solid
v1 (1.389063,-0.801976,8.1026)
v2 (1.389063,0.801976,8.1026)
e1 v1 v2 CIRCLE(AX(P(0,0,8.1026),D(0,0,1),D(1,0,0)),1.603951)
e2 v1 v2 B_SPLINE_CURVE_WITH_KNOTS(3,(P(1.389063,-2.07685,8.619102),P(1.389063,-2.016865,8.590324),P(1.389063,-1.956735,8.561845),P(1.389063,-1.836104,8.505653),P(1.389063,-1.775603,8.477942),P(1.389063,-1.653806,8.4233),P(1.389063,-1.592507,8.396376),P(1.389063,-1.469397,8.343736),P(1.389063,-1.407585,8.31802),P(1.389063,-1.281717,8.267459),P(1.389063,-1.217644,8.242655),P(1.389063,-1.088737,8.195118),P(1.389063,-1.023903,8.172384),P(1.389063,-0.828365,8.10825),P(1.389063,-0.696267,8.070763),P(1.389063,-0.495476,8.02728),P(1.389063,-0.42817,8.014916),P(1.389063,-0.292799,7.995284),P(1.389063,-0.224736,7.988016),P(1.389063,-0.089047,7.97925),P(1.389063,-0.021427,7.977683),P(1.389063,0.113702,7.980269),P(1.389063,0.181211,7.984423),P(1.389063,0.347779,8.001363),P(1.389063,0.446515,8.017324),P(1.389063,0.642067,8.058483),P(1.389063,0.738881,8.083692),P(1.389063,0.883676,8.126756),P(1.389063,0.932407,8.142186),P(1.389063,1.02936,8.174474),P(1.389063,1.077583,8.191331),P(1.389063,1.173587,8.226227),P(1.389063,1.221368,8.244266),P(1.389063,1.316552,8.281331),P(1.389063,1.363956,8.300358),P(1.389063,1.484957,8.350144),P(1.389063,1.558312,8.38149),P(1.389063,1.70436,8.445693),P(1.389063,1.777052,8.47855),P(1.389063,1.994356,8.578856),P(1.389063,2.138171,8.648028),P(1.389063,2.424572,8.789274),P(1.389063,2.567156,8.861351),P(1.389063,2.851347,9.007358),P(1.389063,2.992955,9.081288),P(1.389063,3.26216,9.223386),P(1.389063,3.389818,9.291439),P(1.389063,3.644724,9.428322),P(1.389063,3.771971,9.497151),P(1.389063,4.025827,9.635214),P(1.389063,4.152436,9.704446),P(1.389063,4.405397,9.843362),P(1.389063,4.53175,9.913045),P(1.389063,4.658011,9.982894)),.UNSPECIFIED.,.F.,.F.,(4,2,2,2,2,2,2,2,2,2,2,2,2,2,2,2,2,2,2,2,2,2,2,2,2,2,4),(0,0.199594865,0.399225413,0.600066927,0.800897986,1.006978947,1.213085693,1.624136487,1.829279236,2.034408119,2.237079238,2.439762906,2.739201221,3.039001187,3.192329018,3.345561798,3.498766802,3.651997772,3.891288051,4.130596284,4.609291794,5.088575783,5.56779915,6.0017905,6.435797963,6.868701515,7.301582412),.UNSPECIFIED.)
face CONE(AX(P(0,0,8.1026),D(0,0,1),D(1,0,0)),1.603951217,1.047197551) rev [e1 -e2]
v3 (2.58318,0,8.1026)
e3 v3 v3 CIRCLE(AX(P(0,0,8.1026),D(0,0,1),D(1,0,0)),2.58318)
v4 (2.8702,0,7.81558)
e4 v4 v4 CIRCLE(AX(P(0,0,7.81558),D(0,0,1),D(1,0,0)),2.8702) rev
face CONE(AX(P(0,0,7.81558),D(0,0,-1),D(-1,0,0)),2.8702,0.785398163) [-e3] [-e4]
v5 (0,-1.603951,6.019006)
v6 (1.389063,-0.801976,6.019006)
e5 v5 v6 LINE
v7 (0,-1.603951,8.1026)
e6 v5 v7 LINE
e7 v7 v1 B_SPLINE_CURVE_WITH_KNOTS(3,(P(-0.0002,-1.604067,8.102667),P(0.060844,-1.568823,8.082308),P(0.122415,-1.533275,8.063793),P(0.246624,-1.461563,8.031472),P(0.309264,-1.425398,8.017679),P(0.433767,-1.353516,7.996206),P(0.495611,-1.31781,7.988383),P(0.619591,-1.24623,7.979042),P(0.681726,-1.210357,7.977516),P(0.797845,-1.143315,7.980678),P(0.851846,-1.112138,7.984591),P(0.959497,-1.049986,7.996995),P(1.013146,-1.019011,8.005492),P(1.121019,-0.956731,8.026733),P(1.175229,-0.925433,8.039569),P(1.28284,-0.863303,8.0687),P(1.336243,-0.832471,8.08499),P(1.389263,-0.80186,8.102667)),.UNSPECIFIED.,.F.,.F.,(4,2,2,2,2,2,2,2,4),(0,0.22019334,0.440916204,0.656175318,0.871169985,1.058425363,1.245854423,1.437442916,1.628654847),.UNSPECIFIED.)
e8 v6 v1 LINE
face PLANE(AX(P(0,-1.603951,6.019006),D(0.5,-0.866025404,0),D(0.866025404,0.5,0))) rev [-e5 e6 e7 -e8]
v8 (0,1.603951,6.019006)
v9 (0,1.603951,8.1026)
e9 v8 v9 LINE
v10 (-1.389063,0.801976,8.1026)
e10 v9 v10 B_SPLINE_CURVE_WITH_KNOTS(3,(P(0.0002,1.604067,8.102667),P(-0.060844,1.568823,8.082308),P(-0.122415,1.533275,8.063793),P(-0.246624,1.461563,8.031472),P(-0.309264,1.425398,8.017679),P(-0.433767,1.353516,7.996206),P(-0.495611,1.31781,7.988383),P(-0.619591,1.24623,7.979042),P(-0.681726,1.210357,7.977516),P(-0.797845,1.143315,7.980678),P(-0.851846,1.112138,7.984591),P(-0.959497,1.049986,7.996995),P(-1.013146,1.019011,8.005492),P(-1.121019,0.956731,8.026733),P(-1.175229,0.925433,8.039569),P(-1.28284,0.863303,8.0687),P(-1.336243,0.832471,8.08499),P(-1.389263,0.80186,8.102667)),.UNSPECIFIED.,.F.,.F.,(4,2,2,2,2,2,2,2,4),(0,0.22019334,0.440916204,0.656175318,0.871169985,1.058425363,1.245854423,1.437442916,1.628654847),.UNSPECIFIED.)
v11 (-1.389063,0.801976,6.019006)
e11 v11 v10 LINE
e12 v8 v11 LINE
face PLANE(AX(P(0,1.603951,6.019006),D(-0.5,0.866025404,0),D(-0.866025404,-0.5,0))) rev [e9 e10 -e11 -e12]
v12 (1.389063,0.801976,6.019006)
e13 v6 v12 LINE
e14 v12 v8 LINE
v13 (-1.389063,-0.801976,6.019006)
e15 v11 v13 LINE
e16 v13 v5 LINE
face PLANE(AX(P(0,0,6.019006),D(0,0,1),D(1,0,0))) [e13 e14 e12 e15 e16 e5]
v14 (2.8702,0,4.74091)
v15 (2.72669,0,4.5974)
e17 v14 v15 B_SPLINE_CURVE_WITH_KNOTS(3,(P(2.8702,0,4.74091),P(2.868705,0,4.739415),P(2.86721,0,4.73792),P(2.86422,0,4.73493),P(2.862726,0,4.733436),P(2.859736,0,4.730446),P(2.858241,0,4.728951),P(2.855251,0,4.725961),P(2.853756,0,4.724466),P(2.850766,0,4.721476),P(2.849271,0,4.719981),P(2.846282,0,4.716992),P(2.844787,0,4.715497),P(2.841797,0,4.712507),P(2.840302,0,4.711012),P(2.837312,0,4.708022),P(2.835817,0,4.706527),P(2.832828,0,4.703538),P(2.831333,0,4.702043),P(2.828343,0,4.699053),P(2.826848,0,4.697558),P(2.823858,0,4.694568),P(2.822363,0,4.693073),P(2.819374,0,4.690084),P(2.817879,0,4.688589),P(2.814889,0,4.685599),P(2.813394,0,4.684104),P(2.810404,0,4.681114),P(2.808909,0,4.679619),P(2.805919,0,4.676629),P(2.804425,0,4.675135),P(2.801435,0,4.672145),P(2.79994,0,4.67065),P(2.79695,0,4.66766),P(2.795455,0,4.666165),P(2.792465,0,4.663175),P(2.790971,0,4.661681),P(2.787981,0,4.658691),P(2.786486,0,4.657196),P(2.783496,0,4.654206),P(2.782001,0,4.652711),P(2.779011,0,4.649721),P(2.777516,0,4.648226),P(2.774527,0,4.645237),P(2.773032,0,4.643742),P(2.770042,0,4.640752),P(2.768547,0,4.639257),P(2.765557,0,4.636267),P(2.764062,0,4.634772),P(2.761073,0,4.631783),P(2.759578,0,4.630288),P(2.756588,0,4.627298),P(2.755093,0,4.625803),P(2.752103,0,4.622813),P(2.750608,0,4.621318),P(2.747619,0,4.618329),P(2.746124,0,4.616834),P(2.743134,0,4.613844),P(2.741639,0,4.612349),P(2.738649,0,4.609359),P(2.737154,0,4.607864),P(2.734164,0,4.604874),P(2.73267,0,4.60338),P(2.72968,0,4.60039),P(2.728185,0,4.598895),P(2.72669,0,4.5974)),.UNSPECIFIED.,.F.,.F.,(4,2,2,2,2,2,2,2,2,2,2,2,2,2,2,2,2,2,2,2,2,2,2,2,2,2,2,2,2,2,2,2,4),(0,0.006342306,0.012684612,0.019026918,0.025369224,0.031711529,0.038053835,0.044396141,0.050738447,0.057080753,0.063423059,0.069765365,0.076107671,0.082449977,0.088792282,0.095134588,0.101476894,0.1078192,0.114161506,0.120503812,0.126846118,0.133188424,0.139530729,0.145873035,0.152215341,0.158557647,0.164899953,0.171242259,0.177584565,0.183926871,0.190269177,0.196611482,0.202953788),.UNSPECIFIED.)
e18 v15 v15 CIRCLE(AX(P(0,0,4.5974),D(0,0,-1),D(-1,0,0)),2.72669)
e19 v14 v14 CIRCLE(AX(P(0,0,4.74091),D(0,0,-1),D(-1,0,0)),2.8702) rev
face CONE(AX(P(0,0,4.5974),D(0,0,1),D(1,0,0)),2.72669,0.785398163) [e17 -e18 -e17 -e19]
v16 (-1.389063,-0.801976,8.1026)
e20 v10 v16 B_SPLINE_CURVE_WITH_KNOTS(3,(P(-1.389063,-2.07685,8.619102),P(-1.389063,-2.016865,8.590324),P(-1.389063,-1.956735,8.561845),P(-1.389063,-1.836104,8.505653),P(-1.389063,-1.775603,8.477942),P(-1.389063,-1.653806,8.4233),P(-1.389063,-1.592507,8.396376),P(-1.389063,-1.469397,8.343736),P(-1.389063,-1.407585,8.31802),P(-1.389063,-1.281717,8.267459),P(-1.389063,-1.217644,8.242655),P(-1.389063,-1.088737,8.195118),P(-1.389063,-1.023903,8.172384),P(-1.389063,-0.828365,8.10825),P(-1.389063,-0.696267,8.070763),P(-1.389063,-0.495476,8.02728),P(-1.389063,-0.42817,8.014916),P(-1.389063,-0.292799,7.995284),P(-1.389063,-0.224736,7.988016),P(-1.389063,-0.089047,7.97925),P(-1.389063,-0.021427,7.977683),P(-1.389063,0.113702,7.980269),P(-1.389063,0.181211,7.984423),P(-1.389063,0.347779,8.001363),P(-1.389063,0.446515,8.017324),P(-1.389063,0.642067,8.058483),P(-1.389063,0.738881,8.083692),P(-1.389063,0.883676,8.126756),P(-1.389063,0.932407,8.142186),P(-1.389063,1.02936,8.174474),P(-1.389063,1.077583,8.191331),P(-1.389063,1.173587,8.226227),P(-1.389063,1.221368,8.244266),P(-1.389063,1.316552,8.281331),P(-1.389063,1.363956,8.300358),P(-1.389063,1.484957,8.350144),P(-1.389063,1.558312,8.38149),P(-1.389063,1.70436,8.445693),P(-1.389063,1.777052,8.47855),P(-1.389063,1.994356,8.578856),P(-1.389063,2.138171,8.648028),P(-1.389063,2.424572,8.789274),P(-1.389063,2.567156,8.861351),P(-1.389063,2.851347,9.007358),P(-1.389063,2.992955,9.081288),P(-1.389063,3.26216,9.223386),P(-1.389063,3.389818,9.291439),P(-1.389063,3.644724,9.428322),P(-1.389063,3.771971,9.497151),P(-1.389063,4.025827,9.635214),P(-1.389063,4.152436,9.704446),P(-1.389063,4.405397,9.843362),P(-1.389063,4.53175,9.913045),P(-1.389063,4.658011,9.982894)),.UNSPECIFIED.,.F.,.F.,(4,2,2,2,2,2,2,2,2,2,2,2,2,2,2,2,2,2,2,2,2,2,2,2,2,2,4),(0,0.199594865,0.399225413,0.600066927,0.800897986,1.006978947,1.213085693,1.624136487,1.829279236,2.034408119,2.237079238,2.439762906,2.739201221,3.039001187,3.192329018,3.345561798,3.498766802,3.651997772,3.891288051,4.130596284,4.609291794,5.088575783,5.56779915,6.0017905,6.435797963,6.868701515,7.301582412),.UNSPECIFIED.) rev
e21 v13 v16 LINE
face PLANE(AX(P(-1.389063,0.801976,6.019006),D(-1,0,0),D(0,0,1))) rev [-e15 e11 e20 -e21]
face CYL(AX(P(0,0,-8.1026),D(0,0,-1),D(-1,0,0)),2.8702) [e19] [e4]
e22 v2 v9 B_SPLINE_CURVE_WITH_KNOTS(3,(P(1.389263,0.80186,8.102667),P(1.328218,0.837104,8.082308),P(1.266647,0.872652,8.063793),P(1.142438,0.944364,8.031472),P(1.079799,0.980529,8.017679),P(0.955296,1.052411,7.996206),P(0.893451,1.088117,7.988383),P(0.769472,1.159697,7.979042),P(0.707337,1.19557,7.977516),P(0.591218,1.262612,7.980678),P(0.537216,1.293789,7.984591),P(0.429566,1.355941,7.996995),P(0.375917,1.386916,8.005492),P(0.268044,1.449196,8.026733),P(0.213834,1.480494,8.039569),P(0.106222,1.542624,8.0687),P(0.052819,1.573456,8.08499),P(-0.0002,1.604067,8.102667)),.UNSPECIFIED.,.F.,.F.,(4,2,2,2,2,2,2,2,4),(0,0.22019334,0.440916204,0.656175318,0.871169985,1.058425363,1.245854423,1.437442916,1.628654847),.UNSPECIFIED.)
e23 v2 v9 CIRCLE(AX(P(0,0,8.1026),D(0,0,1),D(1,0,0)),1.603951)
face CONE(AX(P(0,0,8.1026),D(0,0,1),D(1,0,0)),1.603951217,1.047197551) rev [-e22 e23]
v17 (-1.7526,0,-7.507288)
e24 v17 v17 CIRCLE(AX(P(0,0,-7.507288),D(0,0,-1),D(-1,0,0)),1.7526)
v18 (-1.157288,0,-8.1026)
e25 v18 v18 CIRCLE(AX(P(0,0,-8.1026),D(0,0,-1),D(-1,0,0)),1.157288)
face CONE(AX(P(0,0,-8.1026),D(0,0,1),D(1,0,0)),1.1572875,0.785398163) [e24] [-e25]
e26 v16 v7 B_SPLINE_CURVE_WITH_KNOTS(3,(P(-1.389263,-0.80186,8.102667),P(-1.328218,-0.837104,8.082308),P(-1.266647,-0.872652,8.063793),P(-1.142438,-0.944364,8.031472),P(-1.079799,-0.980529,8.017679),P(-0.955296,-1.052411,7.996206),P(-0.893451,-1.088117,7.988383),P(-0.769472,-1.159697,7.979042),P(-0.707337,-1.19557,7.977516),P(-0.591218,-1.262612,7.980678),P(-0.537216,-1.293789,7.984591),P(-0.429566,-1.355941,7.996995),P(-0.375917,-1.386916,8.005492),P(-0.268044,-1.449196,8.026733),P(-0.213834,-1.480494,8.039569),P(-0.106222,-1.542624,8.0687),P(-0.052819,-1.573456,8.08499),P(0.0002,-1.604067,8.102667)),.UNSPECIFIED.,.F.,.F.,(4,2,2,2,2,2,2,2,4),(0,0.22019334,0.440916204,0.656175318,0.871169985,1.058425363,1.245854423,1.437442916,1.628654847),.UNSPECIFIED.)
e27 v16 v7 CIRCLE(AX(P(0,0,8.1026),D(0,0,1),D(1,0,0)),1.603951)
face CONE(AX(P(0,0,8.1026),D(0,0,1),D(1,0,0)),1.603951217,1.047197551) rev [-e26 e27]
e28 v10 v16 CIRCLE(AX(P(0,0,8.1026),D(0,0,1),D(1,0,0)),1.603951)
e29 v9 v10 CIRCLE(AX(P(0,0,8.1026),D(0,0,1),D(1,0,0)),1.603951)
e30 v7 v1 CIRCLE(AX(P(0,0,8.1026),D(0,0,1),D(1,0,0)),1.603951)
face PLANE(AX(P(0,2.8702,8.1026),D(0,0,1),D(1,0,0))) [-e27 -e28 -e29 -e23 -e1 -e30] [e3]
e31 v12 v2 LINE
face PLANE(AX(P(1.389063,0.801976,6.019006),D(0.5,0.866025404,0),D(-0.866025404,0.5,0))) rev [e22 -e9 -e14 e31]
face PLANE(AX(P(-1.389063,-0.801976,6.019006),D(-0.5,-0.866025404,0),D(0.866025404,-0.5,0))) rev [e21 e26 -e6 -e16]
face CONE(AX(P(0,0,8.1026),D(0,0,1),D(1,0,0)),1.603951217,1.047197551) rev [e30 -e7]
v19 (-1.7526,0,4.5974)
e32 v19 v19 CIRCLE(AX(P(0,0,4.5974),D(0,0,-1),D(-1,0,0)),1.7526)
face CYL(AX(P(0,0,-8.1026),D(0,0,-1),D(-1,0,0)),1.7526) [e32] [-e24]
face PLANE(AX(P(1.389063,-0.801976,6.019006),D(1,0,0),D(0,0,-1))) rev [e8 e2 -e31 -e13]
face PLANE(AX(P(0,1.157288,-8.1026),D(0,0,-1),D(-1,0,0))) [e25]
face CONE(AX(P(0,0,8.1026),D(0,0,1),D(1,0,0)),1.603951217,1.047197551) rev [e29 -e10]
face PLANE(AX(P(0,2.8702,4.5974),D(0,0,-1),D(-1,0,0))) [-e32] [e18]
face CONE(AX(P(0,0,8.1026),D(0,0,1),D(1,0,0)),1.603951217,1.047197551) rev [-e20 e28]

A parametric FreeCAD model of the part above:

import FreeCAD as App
import Part
import Sketcher

V = App.Vector
Q = App.Units.Quantity


def edges_at(feature, points):
    """Names of the edges that pass closest to the given points."""
    edges = feature.Shape.Edges
    near = lambda p: min(range(len(edges)), key=lambda i: edges[i].distToShape(Part.Vertex(*p))[0])
    return sorted({f"Edge{near(p) + 1}" for p in points})

doc = App.newDocument("Part")
body = doc.addObject("PartDesign::Body", "Body")

# Sketch on YZ plane
sketch1 = body.newObject("Sketcher::SketchObject", "Sketch")
sketch1.AttachmentSupport = (doc.getObject("YZ_Plane"), [""])
sketch1.MapMode = "FlatFace"
sketch1.addGeometry([
    Part.LineSegment(V(1.2, -8.1, 0), V(1.8, -7.5, 0)),  # 0
    Part.LineSegment(V(1.8, -7.5, 0), V(1.8, 4.6, 0)),  # 1
    Part.LineSegment(V(1.8, 4.6, 0), V(2.9, 4.6, 0)),  # 2
    Part.LineSegment(V(2.9, 4.6, 0), V(2.9, 8.1, 0)),  # 3
    Part.LineSegment(V(2.9, 8.1, 0), V(0, 8.1, 0)),  # 4
    Part.LineSegment(V(0, 8.1, 0), V(0, -8.1, 0)),  # 5
    Part.LineSegment(V(0, -8.1, 0), V(1.2, -8.1, 0)),  # 6
], False)
sketch1.addConstraint([
    Sketcher.Constraint("Coincident", 0, 2, 1, 1),
    Sketcher.Constraint("Coincident", 1, 2, 2, 1),
    Sketcher.Constraint("Coincident", 2, 2, 3, 1),
    Sketcher.Constraint("Coincident", 3, 2, 4, 1),
    Sketcher.Constraint("Coincident", 4, 2, 5, 1),
    Sketcher.Constraint("Coincident", 5, 2, 6, 1),
    Sketcher.Constraint("Coincident", 6, 2, 0, 1),
    Sketcher.Constraint("Vertical", 1),
    Sketcher.Constraint("Horizontal", 2),
    Sketcher.Constraint("Vertical", 3),
    Sketcher.Constraint("Horizontal", 4),
    Sketcher.Constraint("Vertical", 5),
    Sketcher.Constraint("Horizontal", 6),
    Sketcher.Constraint("Symmetric", 4, 2, 5, 2, -1, 1),
    Sketcher.Constraint("Angle", 0, Q("45 deg")),
    Sketcher.Constraint("DistanceY", 5, 2, 1, 2, Q("0.5 in")),
    Sketcher.Constraint("DistanceX", 2, 1, 2, 2, Q("0.044 in")),
    Sketcher.Constraint("DistanceX", 4, 2, 4, 1, Q("0.113 in")),
    Sketcher.Constraint("DistanceY", 3, 1, 3, 2, Q("0.138 in")),
    Sketcher.Constraint("Distance", 0, 0.841899),
])
revolution = body.newObject("PartDesign::Revolution", "Revolution")
revolution.Profile = sketch1
revolution.ReferenceAxis = (sketch1, ["V_Axis"])
revolution.Angle = 360

# Sketch on XY plane
sketch2 = body.newObject("Sketcher::SketchObject", "Sketch001")
sketch2.AttachmentSupport = (doc.getObject("XY_Plane"), [""])
sketch2.MapMode = "FlatFace"
sketch2.AttachmentOffset = App.Placement(V(0, 0, 0.319 * 25.4), App.Rotation())
sketch2.addGeometry([
    Part.LineSegment(V(0, 1.6, 0), V(-1.4, 0.8, 0)),  # 0
    Part.LineSegment(V(-1.4, 0.8, 0), V(-1.4, -0.8, 0)),  # 1
    Part.LineSegment(V(-1.4, -0.8, 0), V(0, -1.6, 0)),  # 2
    Part.LineSegment(V(0, -1.6, 0), V(1.4, -0.8, 0)),  # 3
    Part.LineSegment(V(1.4, -0.8, 0), V(1.4, 0.8, 0)),  # 4
    Part.LineSegment(V(1.4, 0.8, 0), V(0, 1.6, 0)),  # 5
], False)
sketch2.addConstraint([
    Sketcher.Constraint("Coincident", 0, 2, 1, 1),
    Sketcher.Constraint("Coincident", 1, 2, 2, 1),
    Sketcher.Constraint("Coincident", 2, 2, 3, 1),
    Sketcher.Constraint("Coincident", 3, 2, 4, 1),
    Sketcher.Constraint("Coincident", 4, 2, 5, 1),
    Sketcher.Constraint("Coincident", 5, 2, 0, 1),
    Sketcher.Constraint("Vertical", 1),
    Sketcher.Constraint("Vertical", 4),
    Sketcher.Constraint("Symmetric", 0, 2, 3, 2, -1, 1),
    Sketcher.Constraint("Symmetric", 2, 2, 5, 2, -1, 1),
    Sketcher.Constraint("PointOnObject", 2, 2, -2),
    Sketcher.Constraint("Parallel", 2, 5),
    Sketcher.Constraint("Horizontal", 1, 2, 3, 2),
    Sketcher.Constraint("Angle", 0, Q("-150 deg")),
    Sketcher.Constraint("DistanceX", 1, 2, 3, 2, Q("0.109375 in")),
    Sketcher.Constraint("DistanceY", 1, 2, 1, 1, 1.603951),
])
pocket1 = body.newObject("PartDesign::Pocket", "Pocket")
pocket1.Profile = sketch2
pocket1.Length = 2.083594

# Sketch on YZ plane
sketch3 = body.newObject("Sketcher::SketchObject", "Sketch002")
sketch3.AttachmentSupport = (doc.getObject("YZ_Plane"), [""])
sketch3.MapMode = "FlatFace"
sketch3.addGeometry([
    Part.LineSegment(V(0, 8.1, 0), V(-1.6, 8.1, 0)),
    Part.LineSegment(V(-1.6, 8.1, 0), V(0, 7.2, 0)),
    Part.LineSegment(V(0, 7.2, 0), V(0, 8.1, 0)),
], False)
sketch3.addConstraint([
    Sketcher.Constraint("Coincident", 0, 2, 1, 1),
    Sketcher.Constraint("Coincident", 1, 2, 2, 1),
    Sketcher.Constraint("Coincident", 2, 2, 0, 1),
    Sketcher.Constraint("Horizontal", 0),
    Sketcher.Constraint("Vertical", 2),
    Sketcher.Constraint("PointOnObject", 1, 2, -2),
    Sketcher.Constraint("Angle", 1, Q("-30 deg")),
    Sketcher.Constraint("DistanceY", -1, 1, 0, 2, Q("0.319 in")),
    Sketcher.Constraint("DistanceX", 0, 2, 0, 1, 1.603951),
])
groove = body.newObject("PartDesign::Groove", "Groove")
groove.Profile = sketch3
groove.ReferenceAxis = (sketch3, ["V_Axis"])
groove.Angle = 360
doc.recompute()

chamfer = body.newObject("PartDesign::Chamfer", "Chamfer")
chamfer.Base = (groove, edges_at(groove, [(2.87, 0, 8.103)]))
chamfer.Size = Q("0.0113 in")
doc.recompute()

chamfer2 = body.newObject("PartDesign::Chamfer", "Chamfer001")
chamfer2.Base = (chamfer, edges_at(chamfer, [(2.87, 0, 4.597)]))
chamfer2.Size = 0.14351

doc.recompute()
